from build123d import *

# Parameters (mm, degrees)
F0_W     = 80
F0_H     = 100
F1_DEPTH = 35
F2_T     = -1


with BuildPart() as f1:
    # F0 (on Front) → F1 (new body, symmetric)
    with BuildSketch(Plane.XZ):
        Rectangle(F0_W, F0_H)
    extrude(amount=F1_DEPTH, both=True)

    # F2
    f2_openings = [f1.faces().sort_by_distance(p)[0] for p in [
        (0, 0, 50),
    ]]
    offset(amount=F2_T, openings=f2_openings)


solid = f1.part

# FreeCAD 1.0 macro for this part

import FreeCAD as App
import Part
import Sketcher

V = App.Vector


def faces_at(feature, points):
    """Names of the faces that lie closest to the given points."""
    faces = feature.Shape.Faces
    near = lambda p: min(range(len(faces)), key=lambda i: faces[i].distToShape(Part.Vertex(*p))[0])
    return sorted({f"Face{near(p) + 1}" for p in points})

doc = App.newDocument("Part")
params = doc.addObject("Spreadsheet::Sheet", "Params")
for row, (alias, value) in enumerate([
    ("sketch1_width", "80 mm"),
    ("sketch1_height", "100 mm"),
    ("pad1_length", "70 mm"),
    ("thickness_wall", "1 mm"),
], start=1):
    params.set(f"A{row}", alias)
    params.set(f"B{row}", "=" + value)
    params.setAlias(f"B{row}", alias)

body = doc.addObject("PartDesign::Body", "Body")

# Sketch on XZ plane
sketch1 = body.newObject("Sketcher::SketchObject", "Sketch")
sketch1.AttachmentSupport = (doc.getObject("XZ_Plane"), [""])
sketch1.MapMode = "FlatFace"
sketch1.addGeometry([
    Part.LineSegment(V(-40, 50, 0), V(-40, -50, 0)),
    Part.LineSegment(V(-40, -50, 0), V(40, -50, 0)),
    Part.LineSegment(V(40, -50, 0), V(40, 50, 0)),
    Part.LineSegment(V(40, 50, 0), V(-40, 50, 0)),
], False)
sketch1.addConstraint([
    Sketcher.Constraint("Coincident", 0, 2, 1, 1),
    Sketcher.Constraint("Coincident", 1, 2, 2, 1),
    Sketcher.Constraint("Coincident", 2, 2, 3, 1),
    Sketcher.Constraint("Coincident", 3, 2, 0, 1),
    Sketcher.Constraint("Vertical", 0),
    Sketcher.Constraint("Horizontal", 1),
    Sketcher.Constraint("Vertical", 2),
    Sketcher.Constraint("Horizontal", 3),
    Sketcher.Constraint("Symmetric", 0, 2, 2, 2, -1, 1),
    Sketcher.Constraint("DistanceX", 1, 1, 1, 2, 80.0),
    Sketcher.Constraint("DistanceY", 0, 2, 0, 1, 100.0),
])
sketch1.setExpression("Constraints[9]", "Params.sketch1_width")
sketch1.setExpression("Constraints[10]", "Params.sketch1_height")
pad1 = body.newObject("PartDesign::Pad", "Pad")
pad1.Profile = sketch1
pad1.setExpression("Length", "Params.pad1_length")
pad1.Midplane = True
doc.recompute()

thickness = body.newObject("PartDesign::Thickness", "Thickness")
thickness.Base = (pad1, faces_at(pad1, [(0, 0, 50)]))
thickness.setExpression("Value", "Params.thickness_wall")
thickness.Reversed = True
thickness.Join = "Arc"

doc.recompute()
